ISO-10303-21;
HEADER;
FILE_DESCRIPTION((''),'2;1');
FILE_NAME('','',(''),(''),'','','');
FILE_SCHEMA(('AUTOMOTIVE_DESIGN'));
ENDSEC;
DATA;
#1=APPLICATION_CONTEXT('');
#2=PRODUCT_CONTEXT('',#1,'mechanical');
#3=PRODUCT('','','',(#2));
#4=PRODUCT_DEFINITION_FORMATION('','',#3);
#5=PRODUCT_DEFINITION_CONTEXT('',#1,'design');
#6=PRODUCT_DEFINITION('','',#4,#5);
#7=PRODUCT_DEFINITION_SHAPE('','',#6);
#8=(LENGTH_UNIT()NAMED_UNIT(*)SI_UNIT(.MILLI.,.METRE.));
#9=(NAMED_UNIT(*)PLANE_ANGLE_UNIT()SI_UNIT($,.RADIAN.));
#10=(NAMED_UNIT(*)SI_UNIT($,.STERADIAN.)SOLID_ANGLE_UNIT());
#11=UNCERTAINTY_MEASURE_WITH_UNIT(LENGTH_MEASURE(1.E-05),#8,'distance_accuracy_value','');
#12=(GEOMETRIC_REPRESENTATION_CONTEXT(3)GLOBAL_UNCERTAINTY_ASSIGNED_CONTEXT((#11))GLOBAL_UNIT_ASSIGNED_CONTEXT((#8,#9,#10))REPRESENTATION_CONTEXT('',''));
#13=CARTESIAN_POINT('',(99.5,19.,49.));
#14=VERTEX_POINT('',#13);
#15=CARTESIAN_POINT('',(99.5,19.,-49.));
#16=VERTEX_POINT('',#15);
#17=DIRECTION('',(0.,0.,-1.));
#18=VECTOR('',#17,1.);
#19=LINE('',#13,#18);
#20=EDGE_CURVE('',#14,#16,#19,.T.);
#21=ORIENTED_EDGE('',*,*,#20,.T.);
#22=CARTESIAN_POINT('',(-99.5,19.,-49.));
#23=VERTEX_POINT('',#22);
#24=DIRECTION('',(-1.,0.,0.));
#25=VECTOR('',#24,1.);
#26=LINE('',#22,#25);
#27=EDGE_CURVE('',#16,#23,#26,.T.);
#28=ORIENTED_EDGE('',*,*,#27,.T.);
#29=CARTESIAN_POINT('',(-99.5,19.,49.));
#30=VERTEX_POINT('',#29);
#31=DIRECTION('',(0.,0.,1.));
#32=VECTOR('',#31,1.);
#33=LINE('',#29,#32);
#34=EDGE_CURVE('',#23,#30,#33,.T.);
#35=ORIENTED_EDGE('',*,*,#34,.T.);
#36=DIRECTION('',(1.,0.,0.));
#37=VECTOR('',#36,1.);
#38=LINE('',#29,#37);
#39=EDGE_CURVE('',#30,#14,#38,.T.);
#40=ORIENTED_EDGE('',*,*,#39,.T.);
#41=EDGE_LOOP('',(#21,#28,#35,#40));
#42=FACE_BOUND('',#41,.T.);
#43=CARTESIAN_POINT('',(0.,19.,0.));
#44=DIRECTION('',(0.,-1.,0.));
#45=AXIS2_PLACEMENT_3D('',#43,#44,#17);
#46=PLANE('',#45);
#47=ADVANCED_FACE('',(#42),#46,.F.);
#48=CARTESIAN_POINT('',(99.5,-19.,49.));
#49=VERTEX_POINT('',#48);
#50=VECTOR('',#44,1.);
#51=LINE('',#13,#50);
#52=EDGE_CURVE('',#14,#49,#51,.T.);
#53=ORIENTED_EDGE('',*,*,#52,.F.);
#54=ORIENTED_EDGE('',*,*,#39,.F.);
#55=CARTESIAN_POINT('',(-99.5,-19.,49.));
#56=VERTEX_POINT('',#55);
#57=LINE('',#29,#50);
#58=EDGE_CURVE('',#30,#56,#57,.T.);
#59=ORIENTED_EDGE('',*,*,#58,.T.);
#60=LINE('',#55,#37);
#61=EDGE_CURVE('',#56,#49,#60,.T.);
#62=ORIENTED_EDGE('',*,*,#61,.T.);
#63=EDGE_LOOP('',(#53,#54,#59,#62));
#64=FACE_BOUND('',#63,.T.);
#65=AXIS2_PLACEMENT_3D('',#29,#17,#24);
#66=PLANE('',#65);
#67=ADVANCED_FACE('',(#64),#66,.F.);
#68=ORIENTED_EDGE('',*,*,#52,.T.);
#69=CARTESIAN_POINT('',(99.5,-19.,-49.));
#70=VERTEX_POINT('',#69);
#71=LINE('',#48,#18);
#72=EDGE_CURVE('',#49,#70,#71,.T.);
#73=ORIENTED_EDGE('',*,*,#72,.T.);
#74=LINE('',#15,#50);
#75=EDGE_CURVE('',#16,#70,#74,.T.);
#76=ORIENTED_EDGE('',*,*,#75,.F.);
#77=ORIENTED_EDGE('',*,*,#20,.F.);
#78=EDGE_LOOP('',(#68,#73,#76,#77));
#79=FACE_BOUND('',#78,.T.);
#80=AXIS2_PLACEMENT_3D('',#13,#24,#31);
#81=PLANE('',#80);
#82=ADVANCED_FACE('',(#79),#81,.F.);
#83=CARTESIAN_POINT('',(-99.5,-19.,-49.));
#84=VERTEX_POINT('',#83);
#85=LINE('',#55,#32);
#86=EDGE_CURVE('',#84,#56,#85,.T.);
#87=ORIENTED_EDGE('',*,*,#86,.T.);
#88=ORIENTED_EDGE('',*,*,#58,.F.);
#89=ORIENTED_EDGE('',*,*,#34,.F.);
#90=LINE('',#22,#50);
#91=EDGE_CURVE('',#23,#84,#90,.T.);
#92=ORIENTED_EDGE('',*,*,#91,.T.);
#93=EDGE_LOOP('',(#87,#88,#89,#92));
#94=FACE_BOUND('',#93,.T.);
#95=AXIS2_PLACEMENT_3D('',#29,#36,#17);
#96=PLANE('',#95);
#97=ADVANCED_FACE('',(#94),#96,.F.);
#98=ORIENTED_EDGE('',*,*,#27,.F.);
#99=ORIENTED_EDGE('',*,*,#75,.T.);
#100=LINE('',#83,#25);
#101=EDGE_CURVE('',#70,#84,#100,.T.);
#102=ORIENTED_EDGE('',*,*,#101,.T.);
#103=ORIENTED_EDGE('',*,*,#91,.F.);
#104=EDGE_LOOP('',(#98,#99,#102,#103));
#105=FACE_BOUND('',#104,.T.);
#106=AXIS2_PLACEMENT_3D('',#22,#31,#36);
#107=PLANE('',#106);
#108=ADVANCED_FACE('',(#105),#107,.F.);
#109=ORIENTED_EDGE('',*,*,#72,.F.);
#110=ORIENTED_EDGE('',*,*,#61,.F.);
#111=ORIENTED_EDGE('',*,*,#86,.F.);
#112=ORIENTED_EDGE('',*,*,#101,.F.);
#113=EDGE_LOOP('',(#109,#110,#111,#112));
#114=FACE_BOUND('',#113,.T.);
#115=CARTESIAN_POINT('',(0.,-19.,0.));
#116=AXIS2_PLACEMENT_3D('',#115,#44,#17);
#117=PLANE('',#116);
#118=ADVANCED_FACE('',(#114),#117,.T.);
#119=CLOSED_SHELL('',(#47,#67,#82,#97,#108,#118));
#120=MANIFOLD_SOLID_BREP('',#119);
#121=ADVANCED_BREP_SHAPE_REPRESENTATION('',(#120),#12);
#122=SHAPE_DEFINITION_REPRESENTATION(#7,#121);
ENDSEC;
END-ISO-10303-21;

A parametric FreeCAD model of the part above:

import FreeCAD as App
import Part
import Sketcher
Q = App.Units.Quantity


def add_polygon(sketch, points):
    """Adds a closed chain of lines whose ends are joined by coincident constraints."""
    first, n = sketch.GeometryCount, len(points)
    for a, b in zip(points, points[1:] + points[:1]):
        sketch.addGeometry(Part.LineSegment(App.Vector(*a, 0), App.Vector(*b, 0)), False)
    for i in range(n):
        sketch.addConstraint(Sketcher.Constraint("Coincident", first + i, 2, first + (i + 1) % n, 1))

doc = App.newDocument("Part")
body = doc.addObject("PartDesign::Body", "Body")

# Sketch on XZ plane
sketch1 = body.newObject("Sketcher::SketchObject", "Sketch")
sketch1.AttachmentSupport = (doc.getObject("XZ_Plane"), [""])
sketch1.MapMode = "FlatFace"
add_polygon(sketch1, [(-100, -49), (-100, 49), (100, 49), (100, -49)])  # lines 0-3
sketch1.addConstraint([
    Sketcher.Constraint("Vertical", 0),
    Sketcher.Constraint("Horizontal", 1),
    Sketcher.Constraint("Vertical", 2),
    Sketcher.Constraint("Horizontal", 3),
    Sketcher.Constraint("Symmetric", 0, 2, 2, 2, -1, 1),
    Sketcher.Constraint("DistanceX", 1, 1, 1, 2, Q("199 mm")),
    Sketcher.Constraint("DistanceY", 0, 1, 0, 2, Q("98 mm")),
])
pad1 = body.newObject("PartDesign::Pad", "Pad")
pad1.Profile = sketch1
pad1.Length = 38
pad1.Midplane = True

doc.recompute()
